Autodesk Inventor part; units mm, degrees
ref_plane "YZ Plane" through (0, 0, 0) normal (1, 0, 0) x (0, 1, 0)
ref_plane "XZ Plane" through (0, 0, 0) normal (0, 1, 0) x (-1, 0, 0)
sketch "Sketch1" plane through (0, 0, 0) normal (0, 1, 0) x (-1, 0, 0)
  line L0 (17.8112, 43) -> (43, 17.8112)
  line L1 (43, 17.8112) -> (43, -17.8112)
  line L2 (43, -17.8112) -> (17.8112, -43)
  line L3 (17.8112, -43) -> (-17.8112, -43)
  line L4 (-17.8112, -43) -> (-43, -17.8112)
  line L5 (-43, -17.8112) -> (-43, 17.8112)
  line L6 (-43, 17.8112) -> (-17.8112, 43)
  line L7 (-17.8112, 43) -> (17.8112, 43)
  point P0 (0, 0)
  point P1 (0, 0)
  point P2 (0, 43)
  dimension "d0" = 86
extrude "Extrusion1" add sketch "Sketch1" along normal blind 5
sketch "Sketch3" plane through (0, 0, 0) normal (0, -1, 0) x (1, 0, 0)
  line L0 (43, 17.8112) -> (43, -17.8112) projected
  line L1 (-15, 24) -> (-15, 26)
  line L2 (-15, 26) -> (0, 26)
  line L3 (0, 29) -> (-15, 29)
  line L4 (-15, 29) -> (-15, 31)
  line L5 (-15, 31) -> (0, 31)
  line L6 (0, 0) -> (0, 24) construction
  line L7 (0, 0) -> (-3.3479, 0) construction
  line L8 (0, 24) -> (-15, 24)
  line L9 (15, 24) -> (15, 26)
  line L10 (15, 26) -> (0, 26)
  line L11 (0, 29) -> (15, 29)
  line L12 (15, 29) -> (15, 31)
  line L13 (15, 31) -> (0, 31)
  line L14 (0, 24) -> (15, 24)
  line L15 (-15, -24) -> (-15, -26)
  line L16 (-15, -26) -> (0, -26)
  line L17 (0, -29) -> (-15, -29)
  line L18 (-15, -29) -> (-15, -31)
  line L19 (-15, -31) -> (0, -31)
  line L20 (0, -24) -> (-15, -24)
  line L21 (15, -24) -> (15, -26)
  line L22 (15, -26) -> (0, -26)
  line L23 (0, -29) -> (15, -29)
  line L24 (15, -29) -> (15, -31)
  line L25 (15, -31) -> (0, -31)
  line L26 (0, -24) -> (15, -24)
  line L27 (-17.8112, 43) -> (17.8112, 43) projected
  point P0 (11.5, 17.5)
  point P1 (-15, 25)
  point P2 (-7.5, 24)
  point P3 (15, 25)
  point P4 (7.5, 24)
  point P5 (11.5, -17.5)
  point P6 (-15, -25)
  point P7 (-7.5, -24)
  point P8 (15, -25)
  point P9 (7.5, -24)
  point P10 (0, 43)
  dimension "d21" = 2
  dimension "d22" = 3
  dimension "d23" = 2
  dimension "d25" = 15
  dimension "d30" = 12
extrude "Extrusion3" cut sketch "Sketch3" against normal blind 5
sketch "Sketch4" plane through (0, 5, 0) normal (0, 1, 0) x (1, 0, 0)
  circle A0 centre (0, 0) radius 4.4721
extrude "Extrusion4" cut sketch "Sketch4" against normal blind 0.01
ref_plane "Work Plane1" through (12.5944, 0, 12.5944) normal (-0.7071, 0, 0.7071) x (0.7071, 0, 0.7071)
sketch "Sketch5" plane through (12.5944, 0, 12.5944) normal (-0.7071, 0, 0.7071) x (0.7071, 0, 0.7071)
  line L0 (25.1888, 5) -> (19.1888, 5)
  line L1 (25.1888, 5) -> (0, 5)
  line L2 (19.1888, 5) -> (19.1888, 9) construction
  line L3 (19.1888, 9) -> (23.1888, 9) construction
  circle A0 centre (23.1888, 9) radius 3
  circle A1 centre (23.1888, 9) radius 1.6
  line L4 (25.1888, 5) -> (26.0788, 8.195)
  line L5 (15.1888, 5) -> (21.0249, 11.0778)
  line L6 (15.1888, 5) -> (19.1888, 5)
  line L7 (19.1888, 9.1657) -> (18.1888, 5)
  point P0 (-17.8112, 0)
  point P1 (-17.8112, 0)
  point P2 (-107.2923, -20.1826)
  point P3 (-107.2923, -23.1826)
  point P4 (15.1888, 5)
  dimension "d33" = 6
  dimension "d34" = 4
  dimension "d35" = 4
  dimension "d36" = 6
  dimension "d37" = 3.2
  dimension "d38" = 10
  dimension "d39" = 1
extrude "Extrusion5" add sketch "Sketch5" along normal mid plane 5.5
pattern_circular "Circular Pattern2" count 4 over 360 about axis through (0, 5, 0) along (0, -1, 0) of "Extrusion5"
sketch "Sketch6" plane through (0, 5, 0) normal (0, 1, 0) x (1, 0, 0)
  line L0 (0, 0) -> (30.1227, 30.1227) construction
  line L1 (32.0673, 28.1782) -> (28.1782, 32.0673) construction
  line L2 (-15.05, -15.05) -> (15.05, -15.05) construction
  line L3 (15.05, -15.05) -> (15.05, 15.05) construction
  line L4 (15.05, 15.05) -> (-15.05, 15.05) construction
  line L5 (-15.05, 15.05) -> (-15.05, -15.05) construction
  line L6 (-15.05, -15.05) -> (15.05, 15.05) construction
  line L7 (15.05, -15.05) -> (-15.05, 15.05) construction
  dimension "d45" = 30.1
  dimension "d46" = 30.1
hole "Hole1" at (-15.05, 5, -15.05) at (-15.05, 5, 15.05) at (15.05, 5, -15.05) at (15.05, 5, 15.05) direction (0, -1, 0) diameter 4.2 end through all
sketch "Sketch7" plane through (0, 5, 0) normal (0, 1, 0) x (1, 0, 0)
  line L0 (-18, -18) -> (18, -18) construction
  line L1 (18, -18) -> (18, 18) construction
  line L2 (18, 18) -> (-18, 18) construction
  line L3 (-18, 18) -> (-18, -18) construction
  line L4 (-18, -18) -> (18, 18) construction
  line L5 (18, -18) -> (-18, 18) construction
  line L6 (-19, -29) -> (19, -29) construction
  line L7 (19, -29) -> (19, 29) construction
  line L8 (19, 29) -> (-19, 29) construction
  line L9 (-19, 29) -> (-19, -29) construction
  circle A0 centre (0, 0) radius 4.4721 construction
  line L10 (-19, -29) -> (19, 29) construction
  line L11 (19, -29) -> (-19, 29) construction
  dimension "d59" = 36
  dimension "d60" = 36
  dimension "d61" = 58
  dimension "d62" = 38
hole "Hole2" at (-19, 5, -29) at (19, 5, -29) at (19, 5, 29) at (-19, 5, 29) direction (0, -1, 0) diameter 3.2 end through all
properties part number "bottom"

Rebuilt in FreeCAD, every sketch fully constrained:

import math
import FreeCAD as App
import Part
import Sketcher
Q = App.Units.Quantity

doc = App.newDocument("Part")
body = doc.addObject("PartDesign::Body", "Body")

sketch1 = body.newObject("Sketcher::SketchObject", "Sketch")
sketch1.AttachmentSupport = (doc.getObject("XZ_Plane"), [""])
sketch1.MapMode = "FlatFace"
sketch1.addGeometry([
    Part.LineSegment(App.Vector(-43, 18, 0), App.Vector(-18, 43, 0)),
    Part.LineSegment(App.Vector(-18, 43, 0), App.Vector(18, 43, 0)),
    Part.LineSegment(App.Vector(18, 43, 0), App.Vector(43, 18, 0)),
    Part.LineSegment(App.Vector(43, 18, 0), App.Vector(43, -18, 0)),
    Part.LineSegment(App.Vector(43, -18, 0), App.Vector(18, -43, 0)),
    Part.LineSegment(App.Vector(18, -43, 0), App.Vector(-18, -43, 0)),
    Part.LineSegment(App.Vector(-18, -43, 0), App.Vector(-43, -18, 0)),
    Part.LineSegment(App.Vector(-43, -18, 0), App.Vector(-43, 18, 0)),
], False)
sketch1.addConstraint([
    Sketcher.Constraint("Coincident", 0, 2, 1, 1),
    Sketcher.Constraint("Coincident", 1, 2, 2, 1),
    Sketcher.Constraint("Coincident", 2, 2, 3, 1),
    Sketcher.Constraint("Coincident", 3, 2, 4, 1),
    Sketcher.Constraint("Coincident", 4, 2, 5, 1),
    Sketcher.Constraint("Coincident", 5, 2, 6, 1),
    Sketcher.Constraint("Coincident", 6, 2, 7, 1),
    Sketcher.Constraint("Coincident", 7, 2, 0, 1),
    Sketcher.Constraint("Horizontal", 1),
    Sketcher.Constraint("Vertical", 3),
    Sketcher.Constraint("Horizontal", 5),
    Sketcher.Constraint("Vertical", 7),
    Sketcher.Constraint("Symmetric", 0, 2, 4, 2, -1, 1),
    Sketcher.Constraint("Symmetric", 2, 2, 6, 2, -1, 1),
    Sketcher.Constraint("Perpendicular", 0, 2),
    Sketcher.Constraint("Perpendicular", 2, 4),
    Sketcher.Constraint("Perpendicular", 4, 6),
    Sketcher.Constraint("Horizontal", 3, 2, 6, 2),
    Sketcher.Constraint("Vertical", 1, 2, 4, 2),
    Sketcher.Constraint("Equal", 5, 3),
    Sketcher.Constraint("DistanceY", 4, 2, 1, 2, Q("86 mm")),
    Sketcher.Constraint("DistanceX", 1, 1, 1, 2, Q("35.6224 mm")),
])
pad1 = body.newObject("PartDesign::Pad", "Pad")
pad1.Profile = sketch1
pad1.Length = 5
pad1.Reversed = True

sketch2 = body.newObject("Sketcher::SketchObject", "Sketch001")
sketch2.AttachmentSupport = (doc.getObject("XZ_Plane"), [""])
sketch2.MapMode = "FlatFace"
sketch2.addGeometry([
    Part.LineSegment(App.Vector(-15, 26, 0), App.Vector(-15, 24, 0)),
    Part.LineSegment(App.Vector(-15, 24, 0), App.Vector(15, 24, 0)),
    Part.LineSegment(App.Vector(15, 24, 0), App.Vector(15, 26, 0)),
    Part.LineSegment(App.Vector(15, 26, 0), App.Vector(-15, 26, 0)),
    Part.LineSegment(App.Vector(-15, 29, 0), App.Vector(15, 29, 0)),
    Part.LineSegment(App.Vector(15, 29, 0), App.Vector(15, 31, 0)),
    Part.LineSegment(App.Vector(15, 31, 0), App.Vector(-15, 31, 0)),
    Part.LineSegment(App.Vector(-15, 31, 0), App.Vector(-15, 29, 0)),
    Part.LineSegment(App.Vector(15, -24, 0), App.Vector(-15, -24, 0)),
    Part.LineSegment(App.Vector(-15, -24, 0), App.Vector(-15, -26, 0)),
    Part.LineSegment(App.Vector(-15, -26, 0), App.Vector(15, -26, 0)),
    Part.LineSegment(App.Vector(15, -26, 0), App.Vector(15, -24, 0)),
    Part.LineSegment(App.Vector(15, -29, 0), App.Vector(-15, -29, 0)),
    Part.LineSegment(App.Vector(-15, -29, 0), App.Vector(-15, -31, 0)),
    Part.LineSegment(App.Vector(-15, -31, 0), App.Vector(15, -31, 0)),
    Part.LineSegment(App.Vector(15, -31, 0), App.Vector(15, -29, 0)),
], False)
sketch2.addConstraint([
    Sketcher.Constraint("Coincident", 0, 2, 1, 1),
    Sketcher.Constraint("Coincident", 1, 2, 2, 1),
    Sketcher.Constraint("Coincident", 2, 2, 3, 1),
    Sketcher.Constraint("Coincident", 3, 2, 0, 1),
    Sketcher.Constraint("Coincident", 4, 2, 5, 1),
    Sketcher.Constraint("Coincident", 5, 2, 6, 1),
    Sketcher.Constraint("Coincident", 6, 2, 7, 1),
    Sketcher.Constraint("Coincident", 7, 2, 4, 1),
    Sketcher.Constraint("Coincident", 8, 2, 9, 1),
    Sketcher.Constraint("Coincident", 9, 2, 10, 1),
    Sketcher.Constraint("Coincident", 10, 2, 11, 1),
    Sketcher.Constraint("Coincident", 11, 2, 8, 1),
    Sketcher.Constraint("Coincident", 12, 2, 13, 1),
    Sketcher.Constraint("Coincident", 13, 2, 14, 1),
    Sketcher.Constraint("Coincident", 14, 2, 15, 1),
    Sketcher.Constraint("Coincident", 15, 2, 12, 1),
    Sketcher.Constraint("Vertical", 0),
    Sketcher.Constraint("Horizontal", 1),
    Sketcher.Constraint("Vertical", 2),
    Sketcher.Constraint("Horizontal", 3),
    Sketcher.Constraint("Horizontal", 4),
    Sketcher.Constraint("Vertical", 5),
    Sketcher.Constraint("Horizontal", 6),
    Sketcher.Constraint("Vertical", 7),
    Sketcher.Constraint("Horizontal", 8),
    Sketcher.Constraint("Vertical", 9),
    Sketcher.Constraint("Horizontal", 10),
    Sketcher.Constraint("Vertical", 11),
    Sketcher.Constraint("Horizontal", 12),
    Sketcher.Constraint("Vertical", 13),
    Sketcher.Constraint("Horizontal", 14),
    Sketcher.Constraint("Vertical", 15),
    Sketcher.Constraint("Symmetric", 1, 2, 8, 2, -1, 1),
    Sketcher.Constraint("Symmetric", 3, 2, 10, 2, -1, 1),
    Sketcher.Constraint("Symmetric", 4, 2, 12, 2, -1, 1),
    Sketcher.Constraint("Symmetric", 6, 2, 14, 2, -1, 1),
    Sketcher.Constraint("Vertical", 2, 2, 4, 2),
    Sketcher.Constraint("Vertical", 3, 2, 6, 2),
    Sketcher.Constraint("Vertical", 7, 2, 8, 2),
    Sketcher.Constraint("Equal", 2, 5),
    Sketcher.Constraint("DistanceY", 0, 2, 0, 1, Q("2 mm")),
    Sketcher.Constraint("DistanceX", 0, 2, -1, 1, Q("15 mm")),
    Sketcher.Constraint("DistanceY", 2, 2, 4, 2, Q("3 mm")),
    Sketcher.Constraint("DistanceY", -1, 1, 0, 2, Q("24 mm")),
])
pocket1 = body.newObject("PartDesign::Pocket", "Pocket")
pocket1.Profile = sketch2
pocket1.Length = 5

sketch3 = body.newObject("Sketcher::SketchObject", "Sketch002")
sketch3.AttachmentSupport = (doc.getObject("XZ_Plane"), [""])
sketch3.MapMode = "FlatFace"
sketch3.AttachmentOffset = App.Placement(App.Vector(0, 0, -5), App.Rotation())
sketch3.addGeometry(Part.Circle(App.Vector(0, 0, 0), App.Vector(0, 0, 1), 4.5), False)
sketch3.addConstraint([
    Sketcher.Constraint("Coincident", 0, 3, -1, 1),
    Sketcher.Constraint("Diameter", 0, Q("8.9442 mm")),
])
pocket2 = body.newObject("PartDesign::Pocket", "Pocket001")
pocket2.Profile = sketch3
pocket2.Length = 0.01
pocket2.Reversed = True

sketch4 = body.newObject("Sketcher::SketchObject", "Sketch003")
sketch4.Placement = App.Placement(App.Vector(12.5944, 0, 12.5944), App.Rotation(App.Vector(0.707106781, 0, 0.707106781), App.Vector(0, 0.999999999, 0), App.Vector(-0.707106781, 0, 0.707106781), "ZXY"))
sketch4.addGeometry([
    Part.LineSegment(App.Vector(25.2, 5, 0), App.Vector(26.1, 8.2, 0)),
    Part.ArcOfCircle(Part.Circle(App.Vector(23.2, 9, 0), App.Vector(0, 0, 1), 3), math.radians(-16), math.radians(136)),
    Part.LineSegment(App.Vector(21, 11.1, 0), App.Vector(15.2, 5, 0)),
    Part.LineSegment(App.Vector(15.2, 5, 0), App.Vector(25.2, 5, 0)),
    Part.Circle(App.Vector(23.2, 9, 0), App.Vector(0, 0, 1), 1.6),
], False)
sketch4.addConstraint([
    Sketcher.Constraint("Tangent", 0, 2, 1, 1),
    Sketcher.Constraint("Tangent", 1, 2, 2, 1),
    Sketcher.Constraint("Coincident", 2, 2, 3, 1),
    Sketcher.Constraint("Coincident", 3, 2, 0, 1),
    Sketcher.Constraint("Horizontal", 3),
    Sketcher.Constraint("Coincident", 4, 3, 1, 3),
    Sketcher.Constraint("Radius", 1, Q("3 mm")),
    Sketcher.Constraint("Diameter", 4, Q("3.2 mm")),
    Sketcher.Constraint("DistanceX", 3, 1, 3, 2, Q("10 mm")),
    Sketcher.Constraint("DistanceY", 2, 2, 1, 3, Q("4 mm")),
    Sketcher.Constraint("DistanceY", -1, 1, 1, 3, Q("9 mm")),
    Sketcher.Constraint("DistanceX", 2, 2, 1, 3, Q("8 mm")),
    Sketcher.Constraint("DistanceX", -1, 1, 1, 3, Q("23.1888 mm")),
])
pad2 = body.newObject("PartDesign::Pad", "Pad001")
pad2.Profile = sketch4
pad2.Length = 5.5
pad2.Midplane = True
doc.recompute()

polarpattern = body.newObject("PartDesign::PolarPattern", "PolarPattern")
polarpattern.Originals = [pad2]
polarpattern.Axis = (doc.getObject("Y_Axis"), [""])
polarpattern.Angle = 360
polarpattern.Occurrences = 4
body.Tip = polarpattern

sketch5 = body.newObject("Sketcher::SketchObject", "Sketch004")
sketch5.AttachmentSupport = (doc.getObject("XZ_Plane"), [""])
sketch5.MapMode = "FlatFace"
sketch5.AttachmentOffset = App.Placement(App.Vector(0, 0, -5), App.Rotation())
sketch5.addGeometry([
    Part.Circle(App.Vector(-15.1, -15.1, 0), App.Vector(0, 0, 1), 2.1),
    Part.Circle(App.Vector(-15.1, 15.1, 0), App.Vector(0, 0, 1), 2.1),
    Part.Circle(App.Vector(15.1, -15.1, 0), App.Vector(0, 0, 1), 2.1),
    Part.Circle(App.Vector(15.1, 15.1, 0), App.Vector(0, 0, 1), 2.1),
], False)
sketch5.addConstraint([
    Sketcher.Constraint("Equal", 0, 1),
    Sketcher.Constraint("Equal", 1, 2),
    Sketcher.Constraint("Equal", 2, 3),
    Sketcher.Constraint("Symmetric", 1, 3, 2, 3, -1, 1),
    Sketcher.Constraint("Symmetric", 0, 3, 3, 3, -1, 1),
    Sketcher.Constraint("Symmetric", 0, 3, 2, 3, -2),
    Sketcher.Constraint("Diameter", 0, Q("4.2 mm")),
    Sketcher.Constraint("DistanceY", 0, 3, 1, 3, Q("30.1 mm")),
    Sketcher.Constraint("DistanceX", 0, 3, 2, 3, Q("30.1 mm")),
])
doc.recompute()
hole = body.newObject("PartDesign::Hole", "Hole")
hole.Profile = sketch5
hole.ThreadType = "None"
hole.Diameter = 4.2
hole.DepthType = "ThroughAll"
hole.Reversed = True

sketch6 = body.newObject("Sketcher::SketchObject", "Sketch005")
sketch6.AttachmentSupport = (doc.getObject("XZ_Plane"), [""])
sketch6.MapMode = "FlatFace"
sketch6.AttachmentOffset = App.Placement(App.Vector(0, 0, -5), App.Rotation())
sketch6.addGeometry([
    Part.Circle(App.Vector(-19, -29, 0), App.Vector(0, 0, 1), 1.6),
    Part.Circle(App.Vector(19, -29, 0), App.Vector(0, 0, 1), 1.6),
    Part.Circle(App.Vector(19, 29, 0), App.Vector(0, 0, 1), 1.6),
    Part.Circle(App.Vector(-19, 29, 0), App.Vector(0, 0, 1), 1.6),
], False)
sketch6.addConstraint([
    Sketcher.Constraint("Equal", 0, 1),
    Sketcher.Constraint("Equal", 1, 2),
    Sketcher.Constraint("Equal", 2, 3),
    Sketcher.Constraint("Symmetric", 0, 3, 2, 3, -1, 1),
    Sketcher.Constraint("Symmetric", 1, 3, 3, 3, -1, 1),
    Sketcher.Constraint("Symmetric", 0, 3, 1, 3, -2),
    Sketcher.Constraint("Diameter", 0, Q("3.2 mm")),
    Sketcher.Constraint("DistanceX", 0, 3, -1, 1, Q("19 mm")),
    Sketcher.Constraint("DistanceY", 0, 3, -1, 1, Q("29 mm")),
])
doc.recompute()
hole2 = body.newObject("PartDesign::Hole", "Hole001")
hole2.Profile = sketch6
hole2.ThreadType = "None"
hole2.Diameter = 3.2
hole2.DepthType = "ThroughAll"
hole2.Reversed = True

doc.recompute()
